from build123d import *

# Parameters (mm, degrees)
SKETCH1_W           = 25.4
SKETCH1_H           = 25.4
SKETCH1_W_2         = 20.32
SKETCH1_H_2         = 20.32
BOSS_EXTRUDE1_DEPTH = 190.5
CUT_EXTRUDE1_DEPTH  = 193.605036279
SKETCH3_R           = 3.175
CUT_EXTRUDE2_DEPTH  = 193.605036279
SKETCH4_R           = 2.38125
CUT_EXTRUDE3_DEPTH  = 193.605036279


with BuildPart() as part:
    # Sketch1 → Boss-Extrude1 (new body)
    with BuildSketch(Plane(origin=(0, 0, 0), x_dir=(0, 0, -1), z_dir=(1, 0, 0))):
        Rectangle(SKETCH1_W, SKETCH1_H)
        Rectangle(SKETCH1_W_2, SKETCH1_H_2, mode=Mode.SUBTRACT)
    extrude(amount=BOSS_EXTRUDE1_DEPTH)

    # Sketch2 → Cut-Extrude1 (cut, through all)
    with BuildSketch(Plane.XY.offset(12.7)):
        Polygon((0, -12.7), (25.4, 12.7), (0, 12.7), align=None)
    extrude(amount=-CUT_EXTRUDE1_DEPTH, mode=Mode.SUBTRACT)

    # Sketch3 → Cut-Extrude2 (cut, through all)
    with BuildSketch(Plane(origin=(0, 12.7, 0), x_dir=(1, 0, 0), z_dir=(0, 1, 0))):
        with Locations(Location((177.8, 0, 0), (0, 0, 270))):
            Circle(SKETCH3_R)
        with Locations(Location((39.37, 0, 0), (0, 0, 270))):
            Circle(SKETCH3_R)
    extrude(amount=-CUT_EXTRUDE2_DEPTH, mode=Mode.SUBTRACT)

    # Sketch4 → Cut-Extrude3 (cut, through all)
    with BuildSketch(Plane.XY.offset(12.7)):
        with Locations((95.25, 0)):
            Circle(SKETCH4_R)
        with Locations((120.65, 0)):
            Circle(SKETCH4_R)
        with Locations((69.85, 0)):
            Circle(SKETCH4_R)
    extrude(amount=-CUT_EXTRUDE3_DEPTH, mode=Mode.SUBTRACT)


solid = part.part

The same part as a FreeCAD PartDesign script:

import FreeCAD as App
import Part
import Sketcher
Q = App.Units.Quantity

doc = App.newDocument("Part")
body = doc.addObject("PartDesign::Body", "Body")

# Sketch on YZ plane
sketch1 = body.newObject("Sketcher::SketchObject", "Sketch")
sketch1.AttachmentSupport = (doc.getObject("YZ_Plane"), [""])
sketch1.MapMode = "FlatFace"
sketch1.addGeometry(Part.LineSegment(App.Vector(12.7, 12.7, 0), App.Vector(-12.7, 12.7, 0)), False)
sketch1.addGeometry(Part.LineSegment(App.Vector(-12.7, 12.7, 0), App.Vector(-12.7, -12.7, 0)), False)
sketch1.addGeometry(Part.LineSegment(App.Vector(-12.7, -12.7, 0), App.Vector(12.7, -12.7, 0)), False)
sketch1.addGeometry(Part.LineSegment(App.Vector(12.7, -12.7, 0), App.Vector(12.7, 12.7, 0)), False)
sketch1.addGeometry(Part.LineSegment(App.Vector(-10.16, -10.16, 0), App.Vector(-10.16, 10.16, 0)), False)
sketch1.addGeometry(Part.LineSegment(App.Vector(-10.16, 10.16, 0), App.Vector(10.16, 10.16, 0)), False)
sketch1.addGeometry(Part.LineSegment(App.Vector(10.16, 10.16, 0), App.Vector(10.16, -10.16, 0)), False)
sketch1.addGeometry(Part.LineSegment(App.Vector(10.16, -10.16, 0), App.Vector(-10.16, -10.16, 0)), False)
sketch1.addConstraint(Sketcher.Constraint("Coincident", 0, 2, 1, 1))
sketch1.addConstraint(Sketcher.Constraint("Coincident", 1, 2, 2, 1))
sketch1.addConstraint(Sketcher.Constraint("Coincident", 2, 2, 3, 1))
sketch1.addConstraint(Sketcher.Constraint("Coincident", 3, 2, 0, 1))
sketch1.addConstraint(Sketcher.Constraint("Coincident", 4, 2, 5, 1))
sketch1.addConstraint(Sketcher.Constraint("Coincident", 5, 2, 6, 1))
sketch1.addConstraint(Sketcher.Constraint("Coincident", 6, 2, 7, 1))
sketch1.addConstraint(Sketcher.Constraint("Coincident", 7, 2, 4, 1))
sketch1.addConstraint(Sketcher.Constraint("Horizontal", 0))
sketch1.addConstraint(Sketcher.Constraint("Vertical", 1))
sketch1.addConstraint(Sketcher.Constraint("Horizontal", 2))
sketch1.addConstraint(Sketcher.Constraint("Vertical", 3))
sketch1.addConstraint(Sketcher.Constraint("Vertical", 4))
sketch1.addConstraint(Sketcher.Constraint("Horizontal", 5))
sketch1.addConstraint(Sketcher.Constraint("Vertical", 6))
sketch1.addConstraint(Sketcher.Constraint("Horizontal", 7))
sketch1.addConstraint(Sketcher.Constraint("Symmetric", 0, 2, 2, 2, -1, 1))
sketch1.addConstraint(Sketcher.Constraint("Symmetric", 4, 2, 6, 2, -1, 1))
sketch1.addConstraint(Sketcher.Constraint("Equal", 2, 1))
sketch1.addConstraint(Sketcher.Constraint("Equal", 7, 4))
sketch1.addConstraint(Sketcher.Constraint("DistanceX", 0, 2, 0, 1, Q("1 in")))
sketch1.addConstraint(Sketcher.Constraint("DistanceX", 5, 1, 5, 2, Q("0.8 in")))
pad1 = body.newObject("PartDesign::Pad", "Pad")
pad1.Profile = sketch1
pad1.Length = Q("7.5 in")

# Sketch on XY plane
sketch2 = body.newObject("Sketcher::SketchObject", "Sketch001")
sketch2.AttachmentSupport = (doc.getObject("XY_Plane"), [""])
sketch2.MapMode = "FlatFace"
sketch2.AttachmentOffset = App.Placement(App.Vector(0, 0, 0.5 * 25.4), App.Rotation())
sketch2.addGeometry(Part.LineSegment(App.Vector(0, -12.7, 0), App.Vector(25.4, 12.7, 0)), False)
sketch2.addGeometry(Part.LineSegment(App.Vector(25.4, 12.7, 0), App.Vector(0, 12.7, 0)), False)
sketch2.addGeometry(Part.LineSegment(App.Vector(0, 12.7, 0), App.Vector(0, -12.7, 0)), False)
sketch2.addConstraint(Sketcher.Constraint("Coincident", 0, 2, 1, 1))
sketch2.addConstraint(Sketcher.Constraint("Coincident", 1, 2, 2, 1))
sketch2.addConstraint(Sketcher.Constraint("Coincident", 2, 2, 0, 1))
sketch2.addConstraint(Sketcher.Constraint("Horizontal", 1))
sketch2.addConstraint(Sketcher.Constraint("Vertical", 2))
sketch2.addConstraint(Sketcher.Constraint("Symmetric", 1, 2, 2, 2, -1, 1))
sketch2.addConstraint(Sketcher.Constraint("Equal", 1, 2))
sketch2.addConstraint(Sketcher.Constraint("DistanceX", 1, 2, 1, 1, Q("1 in")))
pocket1 = body.newObject("PartDesign::Pocket", "Pocket")
pocket1.Profile = sketch2
pocket1.Type = "ThroughAll"

# Sketch on XZ plane
sketch3 = body.newObject("Sketcher::SketchObject", "Sketch002")
sketch3.AttachmentSupport = (doc.getObject("XZ_Plane"), [""])
sketch3.MapMode = "FlatFace"
sketch3.AttachmentOffset = App.Placement(App.Vector(0, 0, -0.5 * 25.4), App.Rotation())
sketch3.addGeometry(Part.Circle(App.Vector(177.8, 0, 0), App.Vector(0, 0, 1), 3.175), False)
sketch3.addGeometry(Part.Circle(App.Vector(39.37, 0, 0), App.Vector(0, 0, 1), 3.175), False)
sketch3.addConstraint(Sketcher.Constraint("Equal", 0, 1))
sketch3.addConstraint(Sketcher.Constraint("PointOnObject", 0, 3, -1))
sketch3.addConstraint(Sketcher.Constraint("PointOnObject", 1, 3, -1))
sketch3.addConstraint(Sketcher.Constraint("Diameter", 0, Q("0.25 in")))
sketch3.addConstraint(Sketcher.Constraint("DistanceX", -1, 1, 0, 3, Q("7 in")))
sketch3.addConstraint(Sketcher.Constraint("DistanceX", -1, 1, 1, 3, Q("1.55 in")))
pocket2 = body.newObject("PartDesign::Pocket", "Pocket001")
pocket2.Profile = sketch3
pocket2.Type = "ThroughAll"
pocket2.Reversed = True

# Sketch on XY plane
sketch4 = body.newObject("Sketcher::SketchObject", "Sketch003")
sketch4.AttachmentSupport = (doc.getObject("XY_Plane"), [""])
sketch4.MapMode = "FlatFace"
sketch4.AttachmentOffset = App.Placement(App.Vector(0, 0, 0.5 * 25.4), App.Rotation())
sketch4.addGeometry(Part.Circle(App.Vector(95.25, 0, 0), App.Vector(0, 0, 1), 2.38125), False)
sketch4.addGeometry(Part.Circle(App.Vector(120.65, 0, 0), App.Vector(0, 0, 1), 2.38125), False)
sketch4.addGeometry(Part.Circle(App.Vector(69.85, 0, 0), App.Vector(0, 0, 1), 2.38125), False)
sketch4.addConstraint(Sketcher.Constraint("Equal", 0, 1))
sketch4.addConstraint(Sketcher.Constraint("Equal", 1, 2))
sketch4.addConstraint(Sketcher.Constraint("PointOnObject", 0, 3, -1))
sketch4.addConstraint(Sketcher.Constraint("PointOnObject", 1, 3, -1))
sketch4.addConstraint(Sketcher.Constraint("PointOnObject", 2, 3, -1))
sketch4.addConstraint(Sketcher.Constraint("Diameter", 0, Q("0.1875 in")))
sketch4.addConstraint(Sketcher.Constraint("DistanceX", 0, 3, 1, 3, Q("1 in")))
sketch4.addConstraint(Sketcher.Constraint("DistanceX", 2, 3, 0, 3, Q("1 in")))
sketch4.addConstraint(Sketcher.Constraint("DistanceX", -1, 1, 0, 3, Q("3.75 in")))
pocket3 = body.newObject("PartDesign::Pocket", "Pocket002")
pocket3.Profile = sketch4
pocket3.Type = "ThroughAll"

doc.recompute()
